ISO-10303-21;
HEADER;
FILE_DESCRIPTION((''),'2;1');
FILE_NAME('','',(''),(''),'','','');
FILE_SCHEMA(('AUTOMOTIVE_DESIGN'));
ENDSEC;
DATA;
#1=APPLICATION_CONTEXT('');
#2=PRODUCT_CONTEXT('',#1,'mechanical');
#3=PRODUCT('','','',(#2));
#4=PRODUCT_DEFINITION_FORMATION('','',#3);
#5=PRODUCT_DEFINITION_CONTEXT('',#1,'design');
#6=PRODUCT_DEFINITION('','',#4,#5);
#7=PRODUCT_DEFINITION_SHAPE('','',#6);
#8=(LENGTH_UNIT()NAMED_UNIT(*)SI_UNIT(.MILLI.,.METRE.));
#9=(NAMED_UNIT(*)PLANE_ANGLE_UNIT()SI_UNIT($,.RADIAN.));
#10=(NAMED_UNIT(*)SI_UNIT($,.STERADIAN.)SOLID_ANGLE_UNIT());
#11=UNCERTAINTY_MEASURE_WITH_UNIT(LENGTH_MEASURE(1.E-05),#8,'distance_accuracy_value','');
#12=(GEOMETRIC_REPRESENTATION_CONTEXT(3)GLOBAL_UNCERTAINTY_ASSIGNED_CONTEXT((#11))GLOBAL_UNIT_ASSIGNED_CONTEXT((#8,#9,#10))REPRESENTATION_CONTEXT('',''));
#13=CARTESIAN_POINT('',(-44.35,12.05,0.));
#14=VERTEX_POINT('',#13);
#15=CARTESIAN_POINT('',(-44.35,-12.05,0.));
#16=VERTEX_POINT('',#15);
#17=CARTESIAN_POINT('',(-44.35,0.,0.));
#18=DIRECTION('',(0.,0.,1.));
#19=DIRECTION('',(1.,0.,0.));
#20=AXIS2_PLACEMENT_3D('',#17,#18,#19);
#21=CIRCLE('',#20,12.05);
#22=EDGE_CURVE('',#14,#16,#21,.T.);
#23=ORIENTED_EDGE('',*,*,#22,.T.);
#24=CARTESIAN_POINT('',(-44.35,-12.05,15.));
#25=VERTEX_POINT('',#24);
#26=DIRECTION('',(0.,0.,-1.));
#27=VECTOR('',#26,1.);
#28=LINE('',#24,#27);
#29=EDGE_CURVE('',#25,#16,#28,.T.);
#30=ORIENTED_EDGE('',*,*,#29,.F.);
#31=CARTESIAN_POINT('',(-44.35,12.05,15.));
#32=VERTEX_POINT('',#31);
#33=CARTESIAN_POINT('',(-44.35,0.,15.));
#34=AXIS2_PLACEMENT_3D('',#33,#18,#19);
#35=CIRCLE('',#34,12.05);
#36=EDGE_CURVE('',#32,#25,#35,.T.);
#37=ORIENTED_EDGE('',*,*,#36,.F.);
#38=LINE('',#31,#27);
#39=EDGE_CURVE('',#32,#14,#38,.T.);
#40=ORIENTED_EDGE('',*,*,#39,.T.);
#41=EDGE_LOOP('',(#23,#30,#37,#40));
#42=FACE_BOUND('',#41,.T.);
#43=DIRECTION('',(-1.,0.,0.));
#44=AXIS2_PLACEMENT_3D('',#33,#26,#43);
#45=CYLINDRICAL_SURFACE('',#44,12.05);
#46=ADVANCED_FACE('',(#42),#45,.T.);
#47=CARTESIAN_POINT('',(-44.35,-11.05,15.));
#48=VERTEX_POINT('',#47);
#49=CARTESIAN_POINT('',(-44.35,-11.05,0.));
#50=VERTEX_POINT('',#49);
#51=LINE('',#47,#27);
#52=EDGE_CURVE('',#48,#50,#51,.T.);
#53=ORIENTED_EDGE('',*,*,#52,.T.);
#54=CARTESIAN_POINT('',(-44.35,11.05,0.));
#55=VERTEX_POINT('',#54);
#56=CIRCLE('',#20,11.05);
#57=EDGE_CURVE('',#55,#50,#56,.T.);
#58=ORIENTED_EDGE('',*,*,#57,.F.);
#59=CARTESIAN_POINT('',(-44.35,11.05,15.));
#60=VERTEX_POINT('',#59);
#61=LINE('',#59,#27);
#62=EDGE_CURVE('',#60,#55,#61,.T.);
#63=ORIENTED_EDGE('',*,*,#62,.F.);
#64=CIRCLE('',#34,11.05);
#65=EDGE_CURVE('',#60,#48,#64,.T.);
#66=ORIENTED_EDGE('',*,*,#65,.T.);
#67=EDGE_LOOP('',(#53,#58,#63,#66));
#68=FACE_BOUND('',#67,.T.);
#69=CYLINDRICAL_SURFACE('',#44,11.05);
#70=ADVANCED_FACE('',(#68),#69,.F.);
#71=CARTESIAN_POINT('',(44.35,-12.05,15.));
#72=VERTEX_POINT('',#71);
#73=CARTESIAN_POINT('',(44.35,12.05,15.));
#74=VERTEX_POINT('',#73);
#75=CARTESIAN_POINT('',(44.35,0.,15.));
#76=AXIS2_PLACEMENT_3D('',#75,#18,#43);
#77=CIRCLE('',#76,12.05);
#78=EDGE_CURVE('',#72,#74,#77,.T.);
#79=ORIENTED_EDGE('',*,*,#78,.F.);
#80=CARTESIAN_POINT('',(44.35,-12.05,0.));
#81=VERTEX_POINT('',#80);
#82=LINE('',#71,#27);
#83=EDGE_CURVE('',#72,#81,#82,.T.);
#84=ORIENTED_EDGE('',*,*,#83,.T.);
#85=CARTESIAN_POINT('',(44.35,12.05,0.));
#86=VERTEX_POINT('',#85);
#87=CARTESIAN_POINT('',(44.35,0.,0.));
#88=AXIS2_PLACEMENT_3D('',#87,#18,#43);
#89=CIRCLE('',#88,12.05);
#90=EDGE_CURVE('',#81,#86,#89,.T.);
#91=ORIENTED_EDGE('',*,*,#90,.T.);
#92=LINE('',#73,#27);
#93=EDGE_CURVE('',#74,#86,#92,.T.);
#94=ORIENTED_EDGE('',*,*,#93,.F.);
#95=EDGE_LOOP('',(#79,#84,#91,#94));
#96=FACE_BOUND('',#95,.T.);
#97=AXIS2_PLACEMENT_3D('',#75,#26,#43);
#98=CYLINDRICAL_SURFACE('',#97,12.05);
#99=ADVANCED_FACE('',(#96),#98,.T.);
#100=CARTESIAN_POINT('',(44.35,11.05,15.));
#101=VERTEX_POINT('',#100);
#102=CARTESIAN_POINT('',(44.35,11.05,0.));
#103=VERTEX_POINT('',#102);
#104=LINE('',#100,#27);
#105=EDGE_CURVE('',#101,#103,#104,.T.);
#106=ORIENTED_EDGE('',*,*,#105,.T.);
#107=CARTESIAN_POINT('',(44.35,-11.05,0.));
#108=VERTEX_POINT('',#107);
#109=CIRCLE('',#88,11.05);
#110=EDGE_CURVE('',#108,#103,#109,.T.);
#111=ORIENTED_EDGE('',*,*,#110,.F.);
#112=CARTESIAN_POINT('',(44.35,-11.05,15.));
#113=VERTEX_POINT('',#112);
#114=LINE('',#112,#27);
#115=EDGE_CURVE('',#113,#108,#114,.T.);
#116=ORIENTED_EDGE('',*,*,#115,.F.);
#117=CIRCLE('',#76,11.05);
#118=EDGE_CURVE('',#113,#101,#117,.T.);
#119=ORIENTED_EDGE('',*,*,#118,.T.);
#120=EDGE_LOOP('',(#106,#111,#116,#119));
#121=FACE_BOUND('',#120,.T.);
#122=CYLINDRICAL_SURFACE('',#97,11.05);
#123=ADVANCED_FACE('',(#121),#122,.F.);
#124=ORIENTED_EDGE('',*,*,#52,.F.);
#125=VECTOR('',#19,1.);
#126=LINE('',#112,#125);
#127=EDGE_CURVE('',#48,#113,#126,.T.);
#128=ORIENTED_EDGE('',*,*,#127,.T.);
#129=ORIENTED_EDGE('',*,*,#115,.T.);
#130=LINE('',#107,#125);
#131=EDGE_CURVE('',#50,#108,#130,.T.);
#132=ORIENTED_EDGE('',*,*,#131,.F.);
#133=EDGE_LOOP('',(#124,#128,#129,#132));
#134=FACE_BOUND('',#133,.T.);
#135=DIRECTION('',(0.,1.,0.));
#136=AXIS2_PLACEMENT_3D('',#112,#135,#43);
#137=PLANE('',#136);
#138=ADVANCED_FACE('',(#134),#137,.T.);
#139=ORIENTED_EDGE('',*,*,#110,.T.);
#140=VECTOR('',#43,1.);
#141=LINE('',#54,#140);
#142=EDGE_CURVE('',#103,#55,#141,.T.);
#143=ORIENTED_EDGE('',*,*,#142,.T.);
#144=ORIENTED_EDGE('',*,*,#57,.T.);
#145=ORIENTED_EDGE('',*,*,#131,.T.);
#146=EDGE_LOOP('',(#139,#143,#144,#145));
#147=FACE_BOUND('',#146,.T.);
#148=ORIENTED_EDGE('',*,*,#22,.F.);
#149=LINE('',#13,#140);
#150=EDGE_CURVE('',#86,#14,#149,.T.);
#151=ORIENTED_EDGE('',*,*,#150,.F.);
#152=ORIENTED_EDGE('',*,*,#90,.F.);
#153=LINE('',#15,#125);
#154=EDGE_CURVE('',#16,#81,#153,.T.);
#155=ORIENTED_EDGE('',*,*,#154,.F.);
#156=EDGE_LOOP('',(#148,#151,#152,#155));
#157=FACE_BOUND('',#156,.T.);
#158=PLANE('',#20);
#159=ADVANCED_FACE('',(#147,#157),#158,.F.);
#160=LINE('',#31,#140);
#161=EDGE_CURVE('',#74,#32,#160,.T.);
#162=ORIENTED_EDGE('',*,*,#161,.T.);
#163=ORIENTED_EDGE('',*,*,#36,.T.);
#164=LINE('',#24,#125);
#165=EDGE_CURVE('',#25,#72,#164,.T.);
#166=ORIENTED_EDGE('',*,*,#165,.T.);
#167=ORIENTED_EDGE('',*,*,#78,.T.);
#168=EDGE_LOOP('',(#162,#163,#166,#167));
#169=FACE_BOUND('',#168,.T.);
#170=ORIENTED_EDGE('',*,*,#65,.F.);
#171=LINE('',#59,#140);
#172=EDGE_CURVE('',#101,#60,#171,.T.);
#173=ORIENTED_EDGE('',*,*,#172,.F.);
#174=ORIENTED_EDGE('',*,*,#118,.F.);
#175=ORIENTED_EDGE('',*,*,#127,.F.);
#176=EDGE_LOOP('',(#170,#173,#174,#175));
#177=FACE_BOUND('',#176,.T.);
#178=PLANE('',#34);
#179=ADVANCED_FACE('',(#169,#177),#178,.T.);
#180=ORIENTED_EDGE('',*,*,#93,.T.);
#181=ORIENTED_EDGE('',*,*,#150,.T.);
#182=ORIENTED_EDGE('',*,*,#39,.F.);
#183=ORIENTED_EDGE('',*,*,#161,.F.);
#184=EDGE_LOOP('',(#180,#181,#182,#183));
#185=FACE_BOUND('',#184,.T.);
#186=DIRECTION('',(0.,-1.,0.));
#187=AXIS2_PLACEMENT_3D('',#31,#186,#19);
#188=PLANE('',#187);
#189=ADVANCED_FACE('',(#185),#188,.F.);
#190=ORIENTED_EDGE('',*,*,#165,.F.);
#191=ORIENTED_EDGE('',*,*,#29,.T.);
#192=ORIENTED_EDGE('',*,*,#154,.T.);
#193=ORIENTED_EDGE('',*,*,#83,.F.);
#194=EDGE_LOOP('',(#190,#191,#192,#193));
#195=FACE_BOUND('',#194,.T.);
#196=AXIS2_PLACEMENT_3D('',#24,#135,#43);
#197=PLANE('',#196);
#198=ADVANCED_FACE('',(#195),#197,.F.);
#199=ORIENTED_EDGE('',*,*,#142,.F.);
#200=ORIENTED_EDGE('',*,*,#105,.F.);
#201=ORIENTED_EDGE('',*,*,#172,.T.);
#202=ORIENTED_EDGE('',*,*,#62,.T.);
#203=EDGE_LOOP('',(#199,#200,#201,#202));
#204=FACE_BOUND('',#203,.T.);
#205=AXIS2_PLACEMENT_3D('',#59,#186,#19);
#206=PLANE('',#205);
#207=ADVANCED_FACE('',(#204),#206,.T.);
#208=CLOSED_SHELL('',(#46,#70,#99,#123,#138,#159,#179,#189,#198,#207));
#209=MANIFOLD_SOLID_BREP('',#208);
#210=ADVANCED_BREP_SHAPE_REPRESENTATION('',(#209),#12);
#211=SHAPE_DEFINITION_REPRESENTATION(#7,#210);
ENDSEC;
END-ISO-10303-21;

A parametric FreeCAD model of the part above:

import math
import FreeCAD as App
import Part
import Sketcher
from FreeCAD import Vector

doc = App.newDocument("Part")
params = doc.addObject("Spreadsheet::Sheet", "Params")
for row, (alias, value) in enumerate([
    ("sketch1_radius", "12.05 mm"),
    ("sketch1_radius2", "11.05 mm"),
    ("sketch1_width", "88.7 mm"),
    ("pad1_length", "15 mm"),
], start=1):
    params.set(f"A{row}", alias)
    params.set(f"B{row}", "=" + value)
    params.setAlias(f"B{row}", alias)

body = doc.addObject("PartDesign::Body", "Body")

sketch1 = doc.addObject("Sketcher::SketchObject", "Sketch")
body.addObject(sketch1)
sketch1.AttachmentSupport = (doc.XY_Plane, [""])
sketch1.MapMode = "FlatFace"
sketch1.addGeometry([
    Part.LineSegment(Vector(44, 12, 0), Vector(-44, 12, 0)),
    Part.ArcOfCircle(Part.Circle(Vector(-44, 0, 0), Vector(0, 0, 1), 12), math.radians(90), math.radians(270)),
    Part.LineSegment(Vector(-44, -12, 0), Vector(44, -12, 0)),
    Part.ArcOfCircle(Part.Circle(Vector(44, 0, 0), Vector(0, 0, 1), 12), math.radians(-90), math.radians(90)),
    Part.LineSegment(Vector(-44, 11, 0), Vector(44, 11, 0)),
    Part.ArcOfCircle(Part.Circle(Vector(44, 0, 0), Vector(0, 0, 1), 11), math.radians(-90), math.radians(90)),
    Part.LineSegment(Vector(44, -11, 0), Vector(-44, -11, 0)),
    Part.ArcOfCircle(Part.Circle(Vector(-44, 0, 0), Vector(0, 0, 1), 11), math.radians(90), math.radians(270)),
], False)
sketch1.addConstraint([
    Sketcher.Constraint("Tangent", 0, 2, 1, 1),
    Sketcher.Constraint("Tangent", 1, 2, 2, 1),
    Sketcher.Constraint("Tangent", 2, 2, 3, 1),
    Sketcher.Constraint("Tangent", 3, 2, 0, 1),
    Sketcher.Constraint("Tangent", 4, 2, 5, 2),
    Sketcher.Constraint("Tangent", 5, 1, 6, 1),
    Sketcher.Constraint("Tangent", 6, 2, 7, 2),
    Sketcher.Constraint("Tangent", 7, 1, 4, 1),
    Sketcher.Constraint("Horizontal", 0),
    Sketcher.Constraint("Horizontal", 2),
    Sketcher.Constraint("Horizontal", 4),
    Sketcher.Constraint("Horizontal", 6),
    Sketcher.Constraint("Coincident", 5, 3, 3, 3),
    Sketcher.Constraint("Symmetric", 1, 3, 3, 3, -1, 1),
    Sketcher.Constraint("Vertical", 7, 3, 0, 2),
    Sketcher.Constraint("Radius", 1, 12.05),
    Sketcher.Constraint("Radius", 5, 11.05),
    Sketcher.Constraint("DistanceX", 0, 2, 0, 1, 88.7),
])
sketch1.setExpression("Constraints[15]", "Params.sketch1_radius")
sketch1.setExpression("Constraints[16]", "Params.sketch1_radius2")
sketch1.setExpression("Constraints[17]", "Params.sketch1_width")
pad1 = doc.addObject("PartDesign::Pad", "Pad")
body.addObject(pad1)
pad1.Profile = sketch1
pad1.setExpression("Length", "Params.pad1_length")

doc.recompute()
